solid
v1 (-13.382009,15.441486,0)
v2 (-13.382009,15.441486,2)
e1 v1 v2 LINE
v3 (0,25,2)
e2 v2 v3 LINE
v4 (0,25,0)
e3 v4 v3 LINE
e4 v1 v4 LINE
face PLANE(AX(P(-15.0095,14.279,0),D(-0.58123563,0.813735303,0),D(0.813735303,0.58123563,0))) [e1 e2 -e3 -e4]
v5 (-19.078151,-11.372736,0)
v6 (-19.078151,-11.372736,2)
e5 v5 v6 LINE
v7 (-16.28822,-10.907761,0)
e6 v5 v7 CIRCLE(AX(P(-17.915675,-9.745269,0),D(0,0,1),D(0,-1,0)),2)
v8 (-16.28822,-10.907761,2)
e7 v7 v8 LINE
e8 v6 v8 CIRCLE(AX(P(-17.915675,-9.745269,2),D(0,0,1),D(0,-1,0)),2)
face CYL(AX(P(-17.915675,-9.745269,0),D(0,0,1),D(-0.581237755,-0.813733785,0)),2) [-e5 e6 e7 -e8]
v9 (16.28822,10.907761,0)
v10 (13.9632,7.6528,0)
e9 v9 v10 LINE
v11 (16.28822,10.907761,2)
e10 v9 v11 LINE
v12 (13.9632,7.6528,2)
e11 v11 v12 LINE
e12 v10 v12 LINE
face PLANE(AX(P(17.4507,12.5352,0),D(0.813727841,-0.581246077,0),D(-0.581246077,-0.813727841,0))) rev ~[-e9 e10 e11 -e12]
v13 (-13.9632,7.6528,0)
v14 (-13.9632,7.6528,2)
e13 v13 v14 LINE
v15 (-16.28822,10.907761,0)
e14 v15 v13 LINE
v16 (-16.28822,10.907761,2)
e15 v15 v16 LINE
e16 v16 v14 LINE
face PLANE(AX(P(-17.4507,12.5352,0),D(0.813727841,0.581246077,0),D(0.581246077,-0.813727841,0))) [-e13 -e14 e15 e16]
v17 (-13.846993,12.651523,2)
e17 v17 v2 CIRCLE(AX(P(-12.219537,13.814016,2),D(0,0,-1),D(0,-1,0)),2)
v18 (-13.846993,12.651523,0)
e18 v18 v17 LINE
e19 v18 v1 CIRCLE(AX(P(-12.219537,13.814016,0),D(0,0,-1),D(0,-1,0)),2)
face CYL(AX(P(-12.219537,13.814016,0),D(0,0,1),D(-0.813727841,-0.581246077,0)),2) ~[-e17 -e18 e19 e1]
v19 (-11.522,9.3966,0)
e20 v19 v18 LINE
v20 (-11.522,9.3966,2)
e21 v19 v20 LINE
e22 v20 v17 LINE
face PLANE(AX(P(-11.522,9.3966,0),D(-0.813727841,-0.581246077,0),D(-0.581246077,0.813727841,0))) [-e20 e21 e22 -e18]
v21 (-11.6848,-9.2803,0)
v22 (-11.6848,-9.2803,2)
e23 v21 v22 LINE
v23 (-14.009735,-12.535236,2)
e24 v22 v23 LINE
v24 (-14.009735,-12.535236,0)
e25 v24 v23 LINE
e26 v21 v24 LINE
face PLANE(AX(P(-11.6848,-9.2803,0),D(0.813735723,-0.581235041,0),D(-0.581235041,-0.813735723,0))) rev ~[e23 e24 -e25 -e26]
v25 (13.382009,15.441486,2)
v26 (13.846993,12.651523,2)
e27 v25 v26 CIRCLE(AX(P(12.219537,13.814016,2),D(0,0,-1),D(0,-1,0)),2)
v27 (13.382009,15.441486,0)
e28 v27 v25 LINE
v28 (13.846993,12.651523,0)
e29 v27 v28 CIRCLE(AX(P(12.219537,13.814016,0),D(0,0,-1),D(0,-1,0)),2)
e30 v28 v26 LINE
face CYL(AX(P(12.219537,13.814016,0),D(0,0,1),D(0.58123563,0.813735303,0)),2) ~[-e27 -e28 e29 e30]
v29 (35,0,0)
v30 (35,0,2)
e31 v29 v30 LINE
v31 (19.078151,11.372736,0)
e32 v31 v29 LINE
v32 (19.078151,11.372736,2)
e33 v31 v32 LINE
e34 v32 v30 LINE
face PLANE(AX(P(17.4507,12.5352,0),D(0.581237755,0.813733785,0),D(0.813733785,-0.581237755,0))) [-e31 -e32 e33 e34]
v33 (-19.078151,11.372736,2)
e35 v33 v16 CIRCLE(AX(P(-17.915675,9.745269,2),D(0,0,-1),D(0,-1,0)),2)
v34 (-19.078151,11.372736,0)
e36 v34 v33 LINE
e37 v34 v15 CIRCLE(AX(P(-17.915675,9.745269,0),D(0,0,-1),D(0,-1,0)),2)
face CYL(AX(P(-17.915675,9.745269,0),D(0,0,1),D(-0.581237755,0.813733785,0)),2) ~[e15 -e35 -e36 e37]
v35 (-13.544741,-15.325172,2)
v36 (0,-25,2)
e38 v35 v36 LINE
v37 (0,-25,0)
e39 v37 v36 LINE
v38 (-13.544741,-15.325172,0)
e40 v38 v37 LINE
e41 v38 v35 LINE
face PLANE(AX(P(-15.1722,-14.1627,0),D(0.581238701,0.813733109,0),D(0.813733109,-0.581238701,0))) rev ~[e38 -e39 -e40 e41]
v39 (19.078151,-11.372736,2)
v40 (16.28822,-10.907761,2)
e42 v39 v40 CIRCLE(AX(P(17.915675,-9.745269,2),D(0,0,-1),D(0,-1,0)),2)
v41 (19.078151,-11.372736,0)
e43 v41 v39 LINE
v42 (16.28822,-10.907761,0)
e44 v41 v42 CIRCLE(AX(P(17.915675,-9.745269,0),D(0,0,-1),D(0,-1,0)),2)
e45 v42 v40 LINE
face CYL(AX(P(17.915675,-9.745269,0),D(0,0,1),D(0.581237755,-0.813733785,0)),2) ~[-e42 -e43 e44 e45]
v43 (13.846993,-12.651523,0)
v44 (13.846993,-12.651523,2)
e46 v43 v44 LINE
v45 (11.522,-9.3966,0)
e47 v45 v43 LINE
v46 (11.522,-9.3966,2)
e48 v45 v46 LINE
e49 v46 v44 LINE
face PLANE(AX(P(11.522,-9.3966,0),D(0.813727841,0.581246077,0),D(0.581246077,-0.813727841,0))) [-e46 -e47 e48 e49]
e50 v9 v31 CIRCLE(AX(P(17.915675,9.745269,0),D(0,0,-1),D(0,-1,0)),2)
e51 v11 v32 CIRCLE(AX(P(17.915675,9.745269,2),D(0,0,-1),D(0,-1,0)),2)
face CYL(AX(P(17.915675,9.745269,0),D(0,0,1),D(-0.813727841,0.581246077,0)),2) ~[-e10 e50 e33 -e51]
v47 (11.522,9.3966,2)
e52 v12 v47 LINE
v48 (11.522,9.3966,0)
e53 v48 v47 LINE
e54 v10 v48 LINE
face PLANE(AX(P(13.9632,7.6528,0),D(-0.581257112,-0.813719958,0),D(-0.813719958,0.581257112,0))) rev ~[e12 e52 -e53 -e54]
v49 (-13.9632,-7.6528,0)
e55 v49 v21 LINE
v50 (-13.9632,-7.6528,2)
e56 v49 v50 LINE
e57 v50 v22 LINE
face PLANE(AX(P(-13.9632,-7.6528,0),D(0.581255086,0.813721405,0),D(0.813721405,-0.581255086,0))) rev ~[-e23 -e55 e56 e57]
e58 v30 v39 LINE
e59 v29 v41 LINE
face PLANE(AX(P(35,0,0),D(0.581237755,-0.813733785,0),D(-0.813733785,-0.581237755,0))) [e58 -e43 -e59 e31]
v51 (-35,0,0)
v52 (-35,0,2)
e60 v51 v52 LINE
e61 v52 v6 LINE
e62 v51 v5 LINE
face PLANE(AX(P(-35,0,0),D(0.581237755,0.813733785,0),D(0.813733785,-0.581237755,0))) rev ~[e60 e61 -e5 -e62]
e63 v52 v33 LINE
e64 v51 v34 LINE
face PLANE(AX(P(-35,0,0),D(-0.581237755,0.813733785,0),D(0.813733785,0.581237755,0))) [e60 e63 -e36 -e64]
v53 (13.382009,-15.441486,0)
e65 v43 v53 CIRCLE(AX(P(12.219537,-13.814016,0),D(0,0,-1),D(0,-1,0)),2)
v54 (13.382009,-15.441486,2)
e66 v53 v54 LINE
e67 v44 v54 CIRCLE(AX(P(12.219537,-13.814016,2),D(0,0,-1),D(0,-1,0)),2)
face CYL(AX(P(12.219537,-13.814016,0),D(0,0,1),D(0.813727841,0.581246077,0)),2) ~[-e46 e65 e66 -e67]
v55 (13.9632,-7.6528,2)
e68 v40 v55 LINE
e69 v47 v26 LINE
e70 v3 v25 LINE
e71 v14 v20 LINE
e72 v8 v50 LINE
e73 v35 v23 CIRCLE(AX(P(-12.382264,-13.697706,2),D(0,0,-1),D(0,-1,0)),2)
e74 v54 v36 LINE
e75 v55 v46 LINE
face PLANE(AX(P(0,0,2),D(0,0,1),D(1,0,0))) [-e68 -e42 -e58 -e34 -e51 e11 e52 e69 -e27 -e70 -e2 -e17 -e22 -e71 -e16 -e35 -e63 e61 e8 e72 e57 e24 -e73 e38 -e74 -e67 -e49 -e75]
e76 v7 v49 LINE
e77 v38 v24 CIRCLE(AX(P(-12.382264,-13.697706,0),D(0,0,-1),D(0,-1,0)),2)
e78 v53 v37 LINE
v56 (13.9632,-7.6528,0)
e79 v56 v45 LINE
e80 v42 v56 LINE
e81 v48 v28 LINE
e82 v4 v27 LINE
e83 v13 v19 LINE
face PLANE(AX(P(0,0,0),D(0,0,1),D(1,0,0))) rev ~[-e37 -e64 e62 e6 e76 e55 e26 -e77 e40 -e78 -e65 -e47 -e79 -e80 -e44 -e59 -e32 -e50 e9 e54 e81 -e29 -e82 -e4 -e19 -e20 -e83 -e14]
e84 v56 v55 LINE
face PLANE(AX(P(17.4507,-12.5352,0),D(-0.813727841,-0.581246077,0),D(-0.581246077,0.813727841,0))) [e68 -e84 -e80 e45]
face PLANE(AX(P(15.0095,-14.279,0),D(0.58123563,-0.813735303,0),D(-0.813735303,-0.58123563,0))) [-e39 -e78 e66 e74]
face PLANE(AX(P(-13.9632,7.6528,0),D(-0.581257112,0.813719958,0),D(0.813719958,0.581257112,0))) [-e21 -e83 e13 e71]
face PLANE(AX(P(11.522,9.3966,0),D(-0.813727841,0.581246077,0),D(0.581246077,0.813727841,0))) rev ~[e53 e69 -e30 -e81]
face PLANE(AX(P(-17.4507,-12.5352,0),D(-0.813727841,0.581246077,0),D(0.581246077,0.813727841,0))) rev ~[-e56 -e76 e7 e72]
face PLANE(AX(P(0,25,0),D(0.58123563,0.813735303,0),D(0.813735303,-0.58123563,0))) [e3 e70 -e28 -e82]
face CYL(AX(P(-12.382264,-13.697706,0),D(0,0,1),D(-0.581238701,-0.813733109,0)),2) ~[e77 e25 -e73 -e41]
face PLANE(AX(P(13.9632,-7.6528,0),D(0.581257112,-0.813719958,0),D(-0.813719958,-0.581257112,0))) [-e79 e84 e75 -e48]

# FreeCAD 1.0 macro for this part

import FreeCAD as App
import Part
import Sketcher
from FreeCAD import Vector


def edges_at(feature, points):
    """Names of the edges that pass closest to the given points."""
    edges = feature.Shape.Edges
    near = lambda p: min(range(len(edges)), key=lambda i: edges[i].distToShape(Part.Vertex(*p))[0])
    return sorted({f"Edge{near(p) + 1}" for p in points})

doc = App.newDocument("Part")
body = doc.addObject("PartDesign::Body", "Body")

# Sketch on XY plane
sketch1 = body.newObject("Sketcher::SketchObject", "Sketch")
sketch1.AttachmentSupport = (doc.getObject("XY_Plane"), [""])
sketch1.MapMode = "FlatFace"
sketch1.addGeometry(Part.LineSegment(Vector(-35, 0, 0), Vector(-17.4507, -12.5352, 0)), False)
sketch1.addGeometry(Part.LineSegment(Vector(-17.4507, -12.5352, 0), Vector(-13.9632, -7.6528, 0)), False)
sketch1.addGeometry(Part.LineSegment(Vector(-13.9632, -7.6528, 0), Vector(-11.6848, -9.2803, 0)), False)
sketch1.addGeometry(Part.LineSegment(Vector(-11.6848, -9.2803, 0), Vector(-15.1722, -14.1627, 0)), False)
sketch1.addGeometry(Part.LineSegment(Vector(-15.1722, -14.1627, 0), Vector(0, -25, 0)), False)
sketch1.addGeometry(Part.LineSegment(Vector(0, -25, 0), Vector(15.0095, -14.279, 0)), False)
sketch1.addGeometry(Part.LineSegment(Vector(15.0095, -14.279, 0), Vector(11.522, -9.3966, 0)), False)
sketch1.addGeometry(Part.LineSegment(Vector(11.522, -9.3966, 0), Vector(13.9632, -7.6528, 0)), False)
sketch1.addGeometry(Part.LineSegment(Vector(13.9632, -7.6528, 0), Vector(17.4507, -12.5352, 0)), False)
sketch1.addGeometry(Part.LineSegment(Vector(17.4507, -12.5352, 0), Vector(35, 0, 0)), False)
sketch1.addGeometry(Part.LineSegment(Vector(35, 0, 0), Vector(17.4507, 12.5352, 0)), False)
sketch1.addGeometry(Part.LineSegment(Vector(17.4507, 12.5352, 0), Vector(13.9632, 7.6528, 0)), False)
sketch1.addGeometry(Part.LineSegment(Vector(13.9632, 7.6528, 0), Vector(11.522, 9.3966, 0)), False)
sketch1.addGeometry(Part.LineSegment(Vector(11.522, 9.3966, 0), Vector(15.0095, 14.279, 0)), False)
sketch1.addGeometry(Part.LineSegment(Vector(15.0095, 14.279, 0), Vector(0, 25, 0)), False)
sketch1.addGeometry(Part.LineSegment(Vector(0, 25, 0), Vector(-15.0095, 14.279, 0)), False)
sketch1.addGeometry(Part.LineSegment(Vector(-15.0095, 14.279, 0), Vector(-11.522, 9.3966, 0)), False)
sketch1.addGeometry(Part.LineSegment(Vector(-11.522, 9.3966, 0), Vector(-13.9632, 7.6528, 0)), False)
sketch1.addGeometry(Part.LineSegment(Vector(-13.9632, 7.6528, 0), Vector(-17.4507, 12.5352, 0)), False)
sketch1.addGeometry(Part.LineSegment(Vector(-17.4507, 12.5352, 0), Vector(-35, 0, 0)), False)
sketch1.addConstraint(Sketcher.Constraint("Coincident", 0, 2, 1, 1))
sketch1.addConstraint(Sketcher.Constraint("Coincident", 1, 2, 2, 1))
sketch1.addConstraint(Sketcher.Constraint("Coincident", 2, 2, 3, 1))
sketch1.addConstraint(Sketcher.Constraint("Coincident", 3, 2, 4, 1))
sketch1.addConstraint(Sketcher.Constraint("Coincident", 4, 2, 5, 1))
sketch1.addConstraint(Sketcher.Constraint("Coincident", 5, 2, 6, 1))
sketch1.addConstraint(Sketcher.Constraint("Coincident", 6, 2, 7, 1))
sketch1.addConstraint(Sketcher.Constraint("Coincident", 7, 2, 8, 1))
sketch1.addConstraint(Sketcher.Constraint("Coincident", 8, 2, 9, 1))
sketch1.addConstraint(Sketcher.Constraint("Coincident", 9, 2, 10, 1))
sketch1.addConstraint(Sketcher.Constraint("Coincident", 10, 2, 11, 1))
sketch1.addConstraint(Sketcher.Constraint("Coincident", 11, 2, 12, 1))
sketch1.addConstraint(Sketcher.Constraint("Coincident", 12, 2, 13, 1))
sketch1.addConstraint(Sketcher.Constraint("Coincident", 13, 2, 14, 1))
sketch1.addConstraint(Sketcher.Constraint("Coincident", 14, 2, 15, 1))
sketch1.addConstraint(Sketcher.Constraint("Coincident", 15, 2, 16, 1))
sketch1.addConstraint(Sketcher.Constraint("Coincident", 16, 2, 17, 1))
sketch1.addConstraint(Sketcher.Constraint("Coincident", 17, 2, 18, 1))
sketch1.addConstraint(Sketcher.Constraint("Coincident", 18, 2, 19, 1))
sketch1.addConstraint(Sketcher.Constraint("Coincident", 19, 2, 0, 1))
sketch1.addConstraint(Sketcher.Constraint("Symmetric", 0, 2, 10, 2, -1, 1))
sketch1.addConstraint(Sketcher.Constraint("Symmetric", 1, 2, 11, 2, -1, 1))
sketch1.addConstraint(Sketcher.Constraint("Symmetric", 4, 2, 14, 2, -1, 1))
sketch1.addConstraint(Sketcher.Constraint("Symmetric", 5, 2, 15, 2, -1, 1))
sketch1.addConstraint(Sketcher.Constraint("Symmetric", 6, 2, 16, 2, -1, 1))
sketch1.addConstraint(Sketcher.Constraint("Symmetric", 7, 2, 17, 2, -1, 1))
sketch1.addConstraint(Sketcher.Constraint("Symmetric", 8, 2, 18, 2, -1, 1))
sketch1.addConstraint(Sketcher.Constraint("Symmetric", 9, 2, 19, 2, -1, 1))
sketch1.addConstraint(Sketcher.Constraint("Symmetric", 1, 2, 7, 2, -2))
sketch1.addConstraint(Sketcher.Constraint("Symmetric", 0, 2, 8, 2, -2))
sketch1.addConstraint(Sketcher.Constraint("Symmetric", 13, 2, 15, 2, -2))
sketch1.addConstraint(Sketcher.Constraint("Symmetric", 12, 2, 16, 2, -2))
sketch1.addConstraint(Sketcher.Constraint("PointOnObject", 4, 2, -2))
sketch1.addConstraint(Sketcher.Constraint("PointOnObject", 9, 2, -1))
sketch1.addConstraint(Sketcher.Constraint("Perpendicular", 0, 1))
sketch1.addConstraint(Sketcher.Constraint("Perpendicular", 1, 2))
sketch1.addConstraint(Sketcher.Constraint("Perpendicular", 2, 3))
sketch1.addConstraint(Sketcher.Constraint("Perpendicular", 3, 4))
sketch1.addConstraint(Sketcher.Constraint("Perpendicular", 5, 6))
sketch1.addConstraint(Sketcher.Constraint("Perpendicular", 6, 7))
sketch1.addConstraint(Sketcher.Constraint("Perpendicular", 7, 8))
sketch1.addConstraint(Sketcher.Constraint("Equal", 1, 3))
sketch1.addConstraint(Sketcher.Constraint("Distance", 1, 6.0))
sketch1.addConstraint(Sketcher.Constraint("Distance", 7, 3.0))
sketch1.addConstraint(Sketcher.Constraint("DistanceY", 4, 2, -1, 1, 25.0))
sketch1.addConstraint(Sketcher.Constraint("DistanceX", -1, 1, 9, 2, 35.0))
sketch1.addConstraint(Sketcher.Constraint("Distance", 2, 2.8))
sketch1.addConstraint(Sketcher.Constraint("DistanceY", 5, 2, -1, 1, 14.279))
pad1 = body.newObject("PartDesign::Pad", "Pad")
pad1.Profile = sketch1
pad1.Length = 2
doc.recompute()

fillet = body.newObject("PartDesign::Fillet", "Fillet")
fillet.Base = (pad1, edges_at(pad1, [
    (-15.009, 14.279, 1),
    (-17.451, 12.535, 1),
    (-15.172, -14.163, 1),
    (-17.451, -12.535, 1),
    (15.009, 14.279, 1),
    (17.451, 12.535, 1),
    (15.009, -14.279, 1),
    (17.451, -12.535, 1),
]))
fillet.Radius = 2

doc.recompute()
